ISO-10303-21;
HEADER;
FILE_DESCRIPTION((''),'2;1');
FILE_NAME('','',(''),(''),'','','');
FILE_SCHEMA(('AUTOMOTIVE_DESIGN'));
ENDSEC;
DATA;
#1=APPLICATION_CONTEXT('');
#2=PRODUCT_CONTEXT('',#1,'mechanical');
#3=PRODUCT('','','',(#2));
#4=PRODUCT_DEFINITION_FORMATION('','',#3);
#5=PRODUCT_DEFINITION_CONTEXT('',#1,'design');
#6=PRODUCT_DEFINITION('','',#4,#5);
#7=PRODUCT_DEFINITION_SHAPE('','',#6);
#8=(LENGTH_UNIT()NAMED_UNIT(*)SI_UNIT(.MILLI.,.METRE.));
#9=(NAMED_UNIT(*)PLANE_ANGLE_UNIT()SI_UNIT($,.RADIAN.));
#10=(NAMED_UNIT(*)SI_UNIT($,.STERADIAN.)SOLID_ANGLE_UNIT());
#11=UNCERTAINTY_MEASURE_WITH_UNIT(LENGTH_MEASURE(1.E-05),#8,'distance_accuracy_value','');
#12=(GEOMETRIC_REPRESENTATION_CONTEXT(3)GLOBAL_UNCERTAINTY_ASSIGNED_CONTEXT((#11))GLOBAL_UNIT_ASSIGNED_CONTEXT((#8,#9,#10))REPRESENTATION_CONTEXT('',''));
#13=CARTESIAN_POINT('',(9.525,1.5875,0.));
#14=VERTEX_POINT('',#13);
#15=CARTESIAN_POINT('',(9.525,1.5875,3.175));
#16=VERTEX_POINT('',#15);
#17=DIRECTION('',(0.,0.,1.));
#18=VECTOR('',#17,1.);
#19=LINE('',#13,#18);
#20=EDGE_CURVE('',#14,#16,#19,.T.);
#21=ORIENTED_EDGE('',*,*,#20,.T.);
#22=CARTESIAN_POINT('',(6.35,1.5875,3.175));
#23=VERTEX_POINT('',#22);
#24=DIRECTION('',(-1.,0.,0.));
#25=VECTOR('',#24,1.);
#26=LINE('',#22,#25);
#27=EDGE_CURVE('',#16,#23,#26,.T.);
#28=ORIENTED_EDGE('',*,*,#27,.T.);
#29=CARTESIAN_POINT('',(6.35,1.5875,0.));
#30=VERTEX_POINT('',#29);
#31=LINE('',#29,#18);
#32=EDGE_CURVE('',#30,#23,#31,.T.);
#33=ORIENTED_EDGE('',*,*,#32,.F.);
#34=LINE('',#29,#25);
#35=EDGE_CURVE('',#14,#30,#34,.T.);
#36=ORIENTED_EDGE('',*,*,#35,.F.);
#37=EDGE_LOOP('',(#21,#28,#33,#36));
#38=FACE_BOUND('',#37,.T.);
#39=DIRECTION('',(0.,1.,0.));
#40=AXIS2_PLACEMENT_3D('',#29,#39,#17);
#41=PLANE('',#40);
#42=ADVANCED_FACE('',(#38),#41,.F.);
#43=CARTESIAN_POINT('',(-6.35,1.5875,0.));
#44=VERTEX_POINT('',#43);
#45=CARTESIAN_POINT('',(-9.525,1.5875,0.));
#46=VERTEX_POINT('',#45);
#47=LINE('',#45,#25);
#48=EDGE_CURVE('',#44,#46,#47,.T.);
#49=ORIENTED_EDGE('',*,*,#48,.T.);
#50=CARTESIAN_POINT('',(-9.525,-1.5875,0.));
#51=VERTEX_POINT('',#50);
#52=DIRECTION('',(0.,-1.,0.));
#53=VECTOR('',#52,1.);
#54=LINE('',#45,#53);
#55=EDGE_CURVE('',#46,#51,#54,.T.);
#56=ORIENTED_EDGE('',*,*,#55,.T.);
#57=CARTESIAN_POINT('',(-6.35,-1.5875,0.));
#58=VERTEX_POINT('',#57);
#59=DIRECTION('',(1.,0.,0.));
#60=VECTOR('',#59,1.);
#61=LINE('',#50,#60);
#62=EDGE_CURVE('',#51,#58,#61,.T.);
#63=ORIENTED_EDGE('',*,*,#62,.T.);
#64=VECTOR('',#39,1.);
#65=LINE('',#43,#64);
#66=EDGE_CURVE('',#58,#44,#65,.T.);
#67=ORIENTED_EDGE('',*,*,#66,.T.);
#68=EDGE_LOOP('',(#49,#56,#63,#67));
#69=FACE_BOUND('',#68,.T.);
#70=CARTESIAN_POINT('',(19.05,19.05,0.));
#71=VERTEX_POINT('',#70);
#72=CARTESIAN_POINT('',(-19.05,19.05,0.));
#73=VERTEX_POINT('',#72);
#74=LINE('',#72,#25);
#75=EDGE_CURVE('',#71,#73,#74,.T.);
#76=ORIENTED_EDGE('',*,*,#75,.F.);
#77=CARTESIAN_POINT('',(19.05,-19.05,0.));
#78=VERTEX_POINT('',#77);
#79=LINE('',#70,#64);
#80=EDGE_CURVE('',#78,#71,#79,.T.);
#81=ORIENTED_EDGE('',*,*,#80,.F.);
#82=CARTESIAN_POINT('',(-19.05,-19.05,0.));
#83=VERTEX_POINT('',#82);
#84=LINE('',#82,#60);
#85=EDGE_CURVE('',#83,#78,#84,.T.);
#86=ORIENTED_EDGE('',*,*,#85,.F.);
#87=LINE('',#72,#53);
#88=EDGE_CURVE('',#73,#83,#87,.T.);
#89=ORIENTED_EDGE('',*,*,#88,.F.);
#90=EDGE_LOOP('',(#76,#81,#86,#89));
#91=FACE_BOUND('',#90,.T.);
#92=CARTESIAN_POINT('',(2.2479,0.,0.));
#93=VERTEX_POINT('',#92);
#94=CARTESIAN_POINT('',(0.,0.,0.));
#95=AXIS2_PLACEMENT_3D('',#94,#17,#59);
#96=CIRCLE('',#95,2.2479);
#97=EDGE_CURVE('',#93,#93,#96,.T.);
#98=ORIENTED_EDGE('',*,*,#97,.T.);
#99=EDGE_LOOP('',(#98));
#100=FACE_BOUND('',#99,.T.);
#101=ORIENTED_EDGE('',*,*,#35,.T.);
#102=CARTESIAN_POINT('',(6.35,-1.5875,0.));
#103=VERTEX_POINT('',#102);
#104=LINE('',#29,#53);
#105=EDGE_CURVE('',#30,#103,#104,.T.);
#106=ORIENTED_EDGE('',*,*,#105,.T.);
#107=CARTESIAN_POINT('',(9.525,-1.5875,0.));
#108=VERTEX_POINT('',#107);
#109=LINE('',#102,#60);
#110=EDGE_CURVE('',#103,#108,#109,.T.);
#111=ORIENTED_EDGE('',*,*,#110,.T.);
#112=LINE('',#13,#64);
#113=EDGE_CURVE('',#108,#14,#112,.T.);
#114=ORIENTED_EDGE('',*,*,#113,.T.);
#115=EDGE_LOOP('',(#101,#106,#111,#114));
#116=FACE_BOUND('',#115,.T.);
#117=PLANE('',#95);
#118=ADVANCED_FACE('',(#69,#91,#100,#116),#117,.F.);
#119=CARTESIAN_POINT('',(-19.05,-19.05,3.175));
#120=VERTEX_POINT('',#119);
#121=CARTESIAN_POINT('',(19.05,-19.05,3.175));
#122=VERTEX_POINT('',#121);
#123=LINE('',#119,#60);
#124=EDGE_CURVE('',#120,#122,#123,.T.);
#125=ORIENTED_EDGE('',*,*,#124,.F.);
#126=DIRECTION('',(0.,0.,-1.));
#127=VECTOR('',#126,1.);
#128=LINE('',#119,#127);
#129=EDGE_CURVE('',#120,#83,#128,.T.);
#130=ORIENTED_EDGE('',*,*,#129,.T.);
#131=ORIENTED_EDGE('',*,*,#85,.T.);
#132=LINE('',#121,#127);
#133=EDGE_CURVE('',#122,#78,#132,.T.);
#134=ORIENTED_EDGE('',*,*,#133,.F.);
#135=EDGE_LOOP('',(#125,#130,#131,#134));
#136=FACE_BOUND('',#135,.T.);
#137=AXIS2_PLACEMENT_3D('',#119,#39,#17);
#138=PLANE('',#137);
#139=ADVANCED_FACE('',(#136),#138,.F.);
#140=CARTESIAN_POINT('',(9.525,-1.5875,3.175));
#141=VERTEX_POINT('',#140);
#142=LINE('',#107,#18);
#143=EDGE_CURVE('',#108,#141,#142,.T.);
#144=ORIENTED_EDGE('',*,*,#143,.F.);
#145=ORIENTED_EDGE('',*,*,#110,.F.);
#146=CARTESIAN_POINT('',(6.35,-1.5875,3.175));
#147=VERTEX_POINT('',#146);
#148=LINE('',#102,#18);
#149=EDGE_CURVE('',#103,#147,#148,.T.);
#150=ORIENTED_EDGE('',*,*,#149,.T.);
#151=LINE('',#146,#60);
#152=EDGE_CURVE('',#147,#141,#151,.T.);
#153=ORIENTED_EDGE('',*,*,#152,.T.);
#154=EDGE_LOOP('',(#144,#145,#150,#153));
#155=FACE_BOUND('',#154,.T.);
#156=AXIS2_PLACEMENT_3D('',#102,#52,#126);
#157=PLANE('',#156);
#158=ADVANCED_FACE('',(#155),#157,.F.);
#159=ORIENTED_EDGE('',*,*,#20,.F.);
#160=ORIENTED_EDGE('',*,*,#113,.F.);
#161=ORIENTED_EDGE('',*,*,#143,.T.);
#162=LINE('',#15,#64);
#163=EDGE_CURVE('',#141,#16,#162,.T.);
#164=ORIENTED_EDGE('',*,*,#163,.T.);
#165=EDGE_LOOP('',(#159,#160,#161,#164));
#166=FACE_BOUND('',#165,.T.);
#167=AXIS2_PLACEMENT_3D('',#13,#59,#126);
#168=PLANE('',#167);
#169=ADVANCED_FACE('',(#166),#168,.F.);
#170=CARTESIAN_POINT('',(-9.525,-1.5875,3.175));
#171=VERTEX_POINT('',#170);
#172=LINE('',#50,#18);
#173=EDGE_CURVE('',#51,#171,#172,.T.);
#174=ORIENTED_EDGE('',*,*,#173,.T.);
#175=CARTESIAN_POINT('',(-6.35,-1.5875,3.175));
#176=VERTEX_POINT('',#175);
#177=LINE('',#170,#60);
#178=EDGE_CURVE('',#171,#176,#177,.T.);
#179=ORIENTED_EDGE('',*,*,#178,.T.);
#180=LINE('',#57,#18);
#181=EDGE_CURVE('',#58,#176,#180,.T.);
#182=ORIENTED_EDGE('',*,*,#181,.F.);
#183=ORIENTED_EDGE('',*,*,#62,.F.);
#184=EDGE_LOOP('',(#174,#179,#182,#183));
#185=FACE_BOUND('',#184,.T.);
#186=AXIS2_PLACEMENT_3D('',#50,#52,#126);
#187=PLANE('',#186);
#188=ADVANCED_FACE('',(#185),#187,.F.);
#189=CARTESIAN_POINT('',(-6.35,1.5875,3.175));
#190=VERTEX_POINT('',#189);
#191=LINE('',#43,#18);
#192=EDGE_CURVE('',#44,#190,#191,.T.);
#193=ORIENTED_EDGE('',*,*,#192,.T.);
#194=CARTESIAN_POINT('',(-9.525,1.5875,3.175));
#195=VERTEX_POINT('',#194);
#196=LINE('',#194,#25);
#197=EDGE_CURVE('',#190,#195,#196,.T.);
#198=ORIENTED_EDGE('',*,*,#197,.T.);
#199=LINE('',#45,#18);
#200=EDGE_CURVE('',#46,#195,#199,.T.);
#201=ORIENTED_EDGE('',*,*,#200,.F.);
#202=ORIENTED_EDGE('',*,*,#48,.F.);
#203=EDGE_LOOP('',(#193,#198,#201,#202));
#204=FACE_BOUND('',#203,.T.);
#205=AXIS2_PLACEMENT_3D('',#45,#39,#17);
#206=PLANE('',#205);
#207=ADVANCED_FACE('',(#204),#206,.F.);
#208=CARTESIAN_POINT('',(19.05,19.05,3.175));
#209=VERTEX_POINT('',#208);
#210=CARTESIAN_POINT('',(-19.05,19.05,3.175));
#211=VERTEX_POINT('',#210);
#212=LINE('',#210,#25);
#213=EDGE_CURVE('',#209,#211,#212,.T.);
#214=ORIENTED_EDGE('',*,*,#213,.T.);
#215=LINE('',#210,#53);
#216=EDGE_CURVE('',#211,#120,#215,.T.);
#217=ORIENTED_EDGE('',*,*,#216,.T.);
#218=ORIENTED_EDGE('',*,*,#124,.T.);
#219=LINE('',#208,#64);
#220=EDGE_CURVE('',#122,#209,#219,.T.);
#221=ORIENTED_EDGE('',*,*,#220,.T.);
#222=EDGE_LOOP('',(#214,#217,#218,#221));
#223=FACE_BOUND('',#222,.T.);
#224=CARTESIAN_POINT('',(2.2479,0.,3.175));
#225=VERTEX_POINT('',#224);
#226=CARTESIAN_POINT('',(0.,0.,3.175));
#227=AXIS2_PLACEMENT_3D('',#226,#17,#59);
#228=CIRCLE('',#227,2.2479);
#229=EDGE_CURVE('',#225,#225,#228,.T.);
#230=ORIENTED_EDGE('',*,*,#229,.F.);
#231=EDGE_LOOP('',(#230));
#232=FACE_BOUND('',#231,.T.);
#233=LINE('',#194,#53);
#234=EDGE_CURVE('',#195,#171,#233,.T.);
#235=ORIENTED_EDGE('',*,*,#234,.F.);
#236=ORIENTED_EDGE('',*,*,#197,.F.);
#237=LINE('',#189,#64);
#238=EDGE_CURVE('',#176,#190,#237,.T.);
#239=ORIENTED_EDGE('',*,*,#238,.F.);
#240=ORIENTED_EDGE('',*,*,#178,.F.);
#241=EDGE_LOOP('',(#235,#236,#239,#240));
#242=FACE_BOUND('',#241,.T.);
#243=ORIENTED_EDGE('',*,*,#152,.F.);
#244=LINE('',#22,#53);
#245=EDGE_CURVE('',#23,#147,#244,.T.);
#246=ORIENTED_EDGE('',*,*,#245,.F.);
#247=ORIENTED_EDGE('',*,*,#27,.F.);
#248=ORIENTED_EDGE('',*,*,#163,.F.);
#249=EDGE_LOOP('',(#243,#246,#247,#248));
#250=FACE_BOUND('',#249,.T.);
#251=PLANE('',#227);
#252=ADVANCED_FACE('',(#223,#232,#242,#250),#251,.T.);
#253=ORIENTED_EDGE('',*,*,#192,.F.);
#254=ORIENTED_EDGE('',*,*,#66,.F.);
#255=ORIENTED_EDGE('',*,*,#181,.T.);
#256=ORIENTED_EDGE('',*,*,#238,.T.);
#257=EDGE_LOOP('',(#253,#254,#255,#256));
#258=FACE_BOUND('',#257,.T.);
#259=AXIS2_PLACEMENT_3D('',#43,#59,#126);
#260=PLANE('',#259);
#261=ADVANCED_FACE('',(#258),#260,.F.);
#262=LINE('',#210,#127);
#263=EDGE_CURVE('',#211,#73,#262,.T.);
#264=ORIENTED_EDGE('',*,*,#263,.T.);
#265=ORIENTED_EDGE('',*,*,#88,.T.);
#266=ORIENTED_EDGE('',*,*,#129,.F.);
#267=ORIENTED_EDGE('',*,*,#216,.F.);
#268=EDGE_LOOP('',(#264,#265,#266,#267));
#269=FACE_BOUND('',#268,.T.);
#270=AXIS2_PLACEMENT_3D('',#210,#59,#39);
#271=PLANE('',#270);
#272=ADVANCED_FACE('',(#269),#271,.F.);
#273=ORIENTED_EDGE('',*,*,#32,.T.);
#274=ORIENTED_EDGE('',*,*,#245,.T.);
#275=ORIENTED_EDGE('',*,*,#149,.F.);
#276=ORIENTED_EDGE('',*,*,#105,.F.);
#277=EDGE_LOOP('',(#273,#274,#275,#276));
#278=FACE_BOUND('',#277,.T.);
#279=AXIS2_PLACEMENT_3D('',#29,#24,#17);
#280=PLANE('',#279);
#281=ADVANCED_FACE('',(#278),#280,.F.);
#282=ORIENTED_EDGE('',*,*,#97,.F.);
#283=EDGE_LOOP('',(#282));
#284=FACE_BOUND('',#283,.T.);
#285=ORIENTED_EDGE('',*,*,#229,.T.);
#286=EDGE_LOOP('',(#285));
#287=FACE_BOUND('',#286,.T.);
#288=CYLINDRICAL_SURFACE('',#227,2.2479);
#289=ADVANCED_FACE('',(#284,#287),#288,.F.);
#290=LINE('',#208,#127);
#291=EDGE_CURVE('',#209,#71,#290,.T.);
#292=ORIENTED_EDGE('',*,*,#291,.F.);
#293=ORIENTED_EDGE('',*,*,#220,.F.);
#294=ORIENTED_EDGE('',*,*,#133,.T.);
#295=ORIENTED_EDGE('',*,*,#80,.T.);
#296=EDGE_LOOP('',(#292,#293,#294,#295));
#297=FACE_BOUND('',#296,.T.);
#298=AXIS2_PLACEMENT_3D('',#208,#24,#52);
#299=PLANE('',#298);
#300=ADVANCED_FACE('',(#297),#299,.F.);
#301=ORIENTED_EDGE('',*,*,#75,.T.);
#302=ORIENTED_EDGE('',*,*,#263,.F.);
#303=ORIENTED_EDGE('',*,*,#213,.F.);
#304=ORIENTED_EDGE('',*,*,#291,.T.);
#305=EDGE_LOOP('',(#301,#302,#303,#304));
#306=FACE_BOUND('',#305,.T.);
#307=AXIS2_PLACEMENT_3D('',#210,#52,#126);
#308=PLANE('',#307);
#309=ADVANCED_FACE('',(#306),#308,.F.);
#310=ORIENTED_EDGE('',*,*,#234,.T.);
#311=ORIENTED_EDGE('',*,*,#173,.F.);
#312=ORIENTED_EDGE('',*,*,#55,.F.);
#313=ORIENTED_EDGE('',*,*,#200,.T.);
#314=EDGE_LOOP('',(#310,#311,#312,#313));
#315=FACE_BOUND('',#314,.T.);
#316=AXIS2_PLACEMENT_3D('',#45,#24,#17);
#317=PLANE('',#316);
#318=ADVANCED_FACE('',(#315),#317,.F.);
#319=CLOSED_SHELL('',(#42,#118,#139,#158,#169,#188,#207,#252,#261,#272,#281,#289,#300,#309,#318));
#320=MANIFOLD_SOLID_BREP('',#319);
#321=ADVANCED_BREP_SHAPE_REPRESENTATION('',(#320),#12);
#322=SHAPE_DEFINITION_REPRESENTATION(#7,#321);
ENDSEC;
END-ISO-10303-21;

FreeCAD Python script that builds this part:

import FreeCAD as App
import Part
import Sketcher

V = App.Vector
Q = App.Units.Quantity

doc = App.newDocument("Part")
body = doc.addObject("PartDesign::Body", "Body")

sketch1 = doc.addObject("Sketcher::SketchObject", "Sketch")
body.addObject(sketch1)
sketch1.AttachmentSupport = (doc.XY_Plane, [""])
sketch1.MapMode = "FlatFace"
sketch1.addGeometry(Part.LineSegment(V(-19, 19, 0), V(-19, -19, 0)), False)
sketch1.addGeometry(Part.LineSegment(V(-19, -19, 0), V(19, -19, 0)), False)
sketch1.addGeometry(Part.LineSegment(V(19, -19, 0), V(19, 19, 0)), False)
sketch1.addGeometry(Part.LineSegment(V(19, 19, 0), V(-19, 19, 0)), False)
sketch1.addConstraint(Sketcher.Constraint("Coincident", 0, 2, 1, 1))
sketch1.addConstraint(Sketcher.Constraint("Coincident", 1, 2, 2, 1))
sketch1.addConstraint(Sketcher.Constraint("Coincident", 2, 2, 3, 1))
sketch1.addConstraint(Sketcher.Constraint("Coincident", 3, 2, 0, 1))
sketch1.addConstraint(Sketcher.Constraint("Vertical", 0))
sketch1.addConstraint(Sketcher.Constraint("Horizontal", 1))
sketch1.addConstraint(Sketcher.Constraint("Vertical", 2))
sketch1.addConstraint(Sketcher.Constraint("Horizontal", 3))
sketch1.addConstraint(Sketcher.Constraint("Symmetric", 0, 2, 2, 2, -1, 1))
sketch1.addConstraint(Sketcher.Constraint("Equal", 3, 0))
sketch1.addConstraint(Sketcher.Constraint("DistanceX", 1, 1, 1, 2, Q("1.5 in")))
pad1 = doc.addObject("PartDesign::Pad", "Pad")
body.addObject(pad1)
pad1.Profile = sketch1
pad1.Length = Q("0.125 in")

sketch2 = doc.addObject("Sketcher::SketchObject", "Sketch001")
body.addObject(sketch2)
sketch2.AttachmentSupport = (doc.XY_Plane, [""])
sketch2.MapMode = "FlatFace"
sketch2.AttachmentOffset = App.Placement(V(0, 0, 0.125 * 25.4), App.Rotation())
sketch2.addGeometry(Part.Circle(V(0, 0, 0), V(0, 0, 1), 2.2), False)
sketch2.addConstraint(Sketcher.Constraint("Coincident", 0, 3, -1, 1))
sketch2.addConstraint(Sketcher.Constraint("Diameter", 0, Q("0.177 in")))
doc.recompute()
hole = doc.addObject("PartDesign::Hole", "Hole")
body.addObject(hole)
hole.Profile = sketch2
hole.ThreadType = "None"
hole.Diameter = Q("0.177 in")
hole.DepthType = "Dimension"
hole.Depth = Q("0.4 in")
hole.DrillPoint = "Angled"
hole.DrillPointAngle = 118

sketch3 = doc.addObject("Sketcher::SketchObject", "Sketch002")
body.addObject(sketch3)
sketch3.AttachmentSupport = (doc.XY_Plane, [""])
sketch3.MapMode = "FlatFace"
sketch3.AttachmentOffset = App.Placement(V(0, 0, 0.125 * 25.4), App.Rotation())
sketch3.addGeometry(Part.LineSegment(V(-9.5, 1.6, 0), V(-9.5, -1.6, 0)), False)
sketch3.addGeometry(Part.LineSegment(V(-9.5, -1.6, 0), V(-6.3, -1.6, 0)), False)
sketch3.addGeometry(Part.LineSegment(V(-6.3, -1.6, 0), V(-6.3, 1.6, 0)), False)
sketch3.addGeometry(Part.LineSegment(V(-6.3, 1.6, 0), V(-9.5, 1.6, 0)), False)
sketch3.addGeometry(Part.LineSegment(V(6.3, 1.6, 0), V(6.3, -1.6, 0)), False)
sketch3.addGeometry(Part.LineSegment(V(6.3, -1.6, 0), V(9.5, -1.6, 0)), False)
sketch3.addGeometry(Part.LineSegment(V(9.5, -1.6, 0), V(9.5, 1.6, 0)), False)
sketch3.addGeometry(Part.LineSegment(V(9.5, 1.6, 0), V(6.3, 1.6, 0)), False)
sketch3.addConstraint(Sketcher.Constraint("Coincident", 0, 2, 1, 1))
sketch3.addConstraint(Sketcher.Constraint("Coincident", 1, 2, 2, 1))
sketch3.addConstraint(Sketcher.Constraint("Coincident", 2, 2, 3, 1))
sketch3.addConstraint(Sketcher.Constraint("Coincident", 3, 2, 0, 1))
sketch3.addConstraint(Sketcher.Constraint("Coincident", 4, 2, 5, 1))
sketch3.addConstraint(Sketcher.Constraint("Coincident", 5, 2, 6, 1))
sketch3.addConstraint(Sketcher.Constraint("Coincident", 6, 2, 7, 1))
sketch3.addConstraint(Sketcher.Constraint("Coincident", 7, 2, 4, 1))
sketch3.addConstraint(Sketcher.Constraint("Vertical", 0))
sketch3.addConstraint(Sketcher.Constraint("Horizontal", 1))
sketch3.addConstraint(Sketcher.Constraint("Vertical", 2))
sketch3.addConstraint(Sketcher.Constraint("Horizontal", 3))
sketch3.addConstraint(Sketcher.Constraint("Vertical", 4))
sketch3.addConstraint(Sketcher.Constraint("Horizontal", 5))
sketch3.addConstraint(Sketcher.Constraint("Vertical", 6))
sketch3.addConstraint(Sketcher.Constraint("Horizontal", 7))
sketch3.addConstraint(Sketcher.Constraint("Symmetric", 2, 2, 4, 2, -1, 1))
sketch3.addConstraint(Sketcher.Constraint("Symmetric", 0, 2, 6, 2, -1, 1))
sketch3.addConstraint(Sketcher.Constraint("Horizontal", 1, 2, 4, 2))
sketch3.addConstraint(Sketcher.Constraint("Equal", 7, 0))
sketch3.addConstraint(Sketcher.Constraint("DistanceX", 1, 2, 4, 2, Q("0.5 in")))
sketch3.addConstraint(Sketcher.Constraint("DistanceX", 1, 1, 1, 2, Q("0.125 in")))
pocket1 = doc.addObject("PartDesign::Pocket", "Pocket")
body.addObject(pocket1)
pocket1.Profile = sketch3
pocket1.Length = Q("0.125 in")

doc.recompute()
